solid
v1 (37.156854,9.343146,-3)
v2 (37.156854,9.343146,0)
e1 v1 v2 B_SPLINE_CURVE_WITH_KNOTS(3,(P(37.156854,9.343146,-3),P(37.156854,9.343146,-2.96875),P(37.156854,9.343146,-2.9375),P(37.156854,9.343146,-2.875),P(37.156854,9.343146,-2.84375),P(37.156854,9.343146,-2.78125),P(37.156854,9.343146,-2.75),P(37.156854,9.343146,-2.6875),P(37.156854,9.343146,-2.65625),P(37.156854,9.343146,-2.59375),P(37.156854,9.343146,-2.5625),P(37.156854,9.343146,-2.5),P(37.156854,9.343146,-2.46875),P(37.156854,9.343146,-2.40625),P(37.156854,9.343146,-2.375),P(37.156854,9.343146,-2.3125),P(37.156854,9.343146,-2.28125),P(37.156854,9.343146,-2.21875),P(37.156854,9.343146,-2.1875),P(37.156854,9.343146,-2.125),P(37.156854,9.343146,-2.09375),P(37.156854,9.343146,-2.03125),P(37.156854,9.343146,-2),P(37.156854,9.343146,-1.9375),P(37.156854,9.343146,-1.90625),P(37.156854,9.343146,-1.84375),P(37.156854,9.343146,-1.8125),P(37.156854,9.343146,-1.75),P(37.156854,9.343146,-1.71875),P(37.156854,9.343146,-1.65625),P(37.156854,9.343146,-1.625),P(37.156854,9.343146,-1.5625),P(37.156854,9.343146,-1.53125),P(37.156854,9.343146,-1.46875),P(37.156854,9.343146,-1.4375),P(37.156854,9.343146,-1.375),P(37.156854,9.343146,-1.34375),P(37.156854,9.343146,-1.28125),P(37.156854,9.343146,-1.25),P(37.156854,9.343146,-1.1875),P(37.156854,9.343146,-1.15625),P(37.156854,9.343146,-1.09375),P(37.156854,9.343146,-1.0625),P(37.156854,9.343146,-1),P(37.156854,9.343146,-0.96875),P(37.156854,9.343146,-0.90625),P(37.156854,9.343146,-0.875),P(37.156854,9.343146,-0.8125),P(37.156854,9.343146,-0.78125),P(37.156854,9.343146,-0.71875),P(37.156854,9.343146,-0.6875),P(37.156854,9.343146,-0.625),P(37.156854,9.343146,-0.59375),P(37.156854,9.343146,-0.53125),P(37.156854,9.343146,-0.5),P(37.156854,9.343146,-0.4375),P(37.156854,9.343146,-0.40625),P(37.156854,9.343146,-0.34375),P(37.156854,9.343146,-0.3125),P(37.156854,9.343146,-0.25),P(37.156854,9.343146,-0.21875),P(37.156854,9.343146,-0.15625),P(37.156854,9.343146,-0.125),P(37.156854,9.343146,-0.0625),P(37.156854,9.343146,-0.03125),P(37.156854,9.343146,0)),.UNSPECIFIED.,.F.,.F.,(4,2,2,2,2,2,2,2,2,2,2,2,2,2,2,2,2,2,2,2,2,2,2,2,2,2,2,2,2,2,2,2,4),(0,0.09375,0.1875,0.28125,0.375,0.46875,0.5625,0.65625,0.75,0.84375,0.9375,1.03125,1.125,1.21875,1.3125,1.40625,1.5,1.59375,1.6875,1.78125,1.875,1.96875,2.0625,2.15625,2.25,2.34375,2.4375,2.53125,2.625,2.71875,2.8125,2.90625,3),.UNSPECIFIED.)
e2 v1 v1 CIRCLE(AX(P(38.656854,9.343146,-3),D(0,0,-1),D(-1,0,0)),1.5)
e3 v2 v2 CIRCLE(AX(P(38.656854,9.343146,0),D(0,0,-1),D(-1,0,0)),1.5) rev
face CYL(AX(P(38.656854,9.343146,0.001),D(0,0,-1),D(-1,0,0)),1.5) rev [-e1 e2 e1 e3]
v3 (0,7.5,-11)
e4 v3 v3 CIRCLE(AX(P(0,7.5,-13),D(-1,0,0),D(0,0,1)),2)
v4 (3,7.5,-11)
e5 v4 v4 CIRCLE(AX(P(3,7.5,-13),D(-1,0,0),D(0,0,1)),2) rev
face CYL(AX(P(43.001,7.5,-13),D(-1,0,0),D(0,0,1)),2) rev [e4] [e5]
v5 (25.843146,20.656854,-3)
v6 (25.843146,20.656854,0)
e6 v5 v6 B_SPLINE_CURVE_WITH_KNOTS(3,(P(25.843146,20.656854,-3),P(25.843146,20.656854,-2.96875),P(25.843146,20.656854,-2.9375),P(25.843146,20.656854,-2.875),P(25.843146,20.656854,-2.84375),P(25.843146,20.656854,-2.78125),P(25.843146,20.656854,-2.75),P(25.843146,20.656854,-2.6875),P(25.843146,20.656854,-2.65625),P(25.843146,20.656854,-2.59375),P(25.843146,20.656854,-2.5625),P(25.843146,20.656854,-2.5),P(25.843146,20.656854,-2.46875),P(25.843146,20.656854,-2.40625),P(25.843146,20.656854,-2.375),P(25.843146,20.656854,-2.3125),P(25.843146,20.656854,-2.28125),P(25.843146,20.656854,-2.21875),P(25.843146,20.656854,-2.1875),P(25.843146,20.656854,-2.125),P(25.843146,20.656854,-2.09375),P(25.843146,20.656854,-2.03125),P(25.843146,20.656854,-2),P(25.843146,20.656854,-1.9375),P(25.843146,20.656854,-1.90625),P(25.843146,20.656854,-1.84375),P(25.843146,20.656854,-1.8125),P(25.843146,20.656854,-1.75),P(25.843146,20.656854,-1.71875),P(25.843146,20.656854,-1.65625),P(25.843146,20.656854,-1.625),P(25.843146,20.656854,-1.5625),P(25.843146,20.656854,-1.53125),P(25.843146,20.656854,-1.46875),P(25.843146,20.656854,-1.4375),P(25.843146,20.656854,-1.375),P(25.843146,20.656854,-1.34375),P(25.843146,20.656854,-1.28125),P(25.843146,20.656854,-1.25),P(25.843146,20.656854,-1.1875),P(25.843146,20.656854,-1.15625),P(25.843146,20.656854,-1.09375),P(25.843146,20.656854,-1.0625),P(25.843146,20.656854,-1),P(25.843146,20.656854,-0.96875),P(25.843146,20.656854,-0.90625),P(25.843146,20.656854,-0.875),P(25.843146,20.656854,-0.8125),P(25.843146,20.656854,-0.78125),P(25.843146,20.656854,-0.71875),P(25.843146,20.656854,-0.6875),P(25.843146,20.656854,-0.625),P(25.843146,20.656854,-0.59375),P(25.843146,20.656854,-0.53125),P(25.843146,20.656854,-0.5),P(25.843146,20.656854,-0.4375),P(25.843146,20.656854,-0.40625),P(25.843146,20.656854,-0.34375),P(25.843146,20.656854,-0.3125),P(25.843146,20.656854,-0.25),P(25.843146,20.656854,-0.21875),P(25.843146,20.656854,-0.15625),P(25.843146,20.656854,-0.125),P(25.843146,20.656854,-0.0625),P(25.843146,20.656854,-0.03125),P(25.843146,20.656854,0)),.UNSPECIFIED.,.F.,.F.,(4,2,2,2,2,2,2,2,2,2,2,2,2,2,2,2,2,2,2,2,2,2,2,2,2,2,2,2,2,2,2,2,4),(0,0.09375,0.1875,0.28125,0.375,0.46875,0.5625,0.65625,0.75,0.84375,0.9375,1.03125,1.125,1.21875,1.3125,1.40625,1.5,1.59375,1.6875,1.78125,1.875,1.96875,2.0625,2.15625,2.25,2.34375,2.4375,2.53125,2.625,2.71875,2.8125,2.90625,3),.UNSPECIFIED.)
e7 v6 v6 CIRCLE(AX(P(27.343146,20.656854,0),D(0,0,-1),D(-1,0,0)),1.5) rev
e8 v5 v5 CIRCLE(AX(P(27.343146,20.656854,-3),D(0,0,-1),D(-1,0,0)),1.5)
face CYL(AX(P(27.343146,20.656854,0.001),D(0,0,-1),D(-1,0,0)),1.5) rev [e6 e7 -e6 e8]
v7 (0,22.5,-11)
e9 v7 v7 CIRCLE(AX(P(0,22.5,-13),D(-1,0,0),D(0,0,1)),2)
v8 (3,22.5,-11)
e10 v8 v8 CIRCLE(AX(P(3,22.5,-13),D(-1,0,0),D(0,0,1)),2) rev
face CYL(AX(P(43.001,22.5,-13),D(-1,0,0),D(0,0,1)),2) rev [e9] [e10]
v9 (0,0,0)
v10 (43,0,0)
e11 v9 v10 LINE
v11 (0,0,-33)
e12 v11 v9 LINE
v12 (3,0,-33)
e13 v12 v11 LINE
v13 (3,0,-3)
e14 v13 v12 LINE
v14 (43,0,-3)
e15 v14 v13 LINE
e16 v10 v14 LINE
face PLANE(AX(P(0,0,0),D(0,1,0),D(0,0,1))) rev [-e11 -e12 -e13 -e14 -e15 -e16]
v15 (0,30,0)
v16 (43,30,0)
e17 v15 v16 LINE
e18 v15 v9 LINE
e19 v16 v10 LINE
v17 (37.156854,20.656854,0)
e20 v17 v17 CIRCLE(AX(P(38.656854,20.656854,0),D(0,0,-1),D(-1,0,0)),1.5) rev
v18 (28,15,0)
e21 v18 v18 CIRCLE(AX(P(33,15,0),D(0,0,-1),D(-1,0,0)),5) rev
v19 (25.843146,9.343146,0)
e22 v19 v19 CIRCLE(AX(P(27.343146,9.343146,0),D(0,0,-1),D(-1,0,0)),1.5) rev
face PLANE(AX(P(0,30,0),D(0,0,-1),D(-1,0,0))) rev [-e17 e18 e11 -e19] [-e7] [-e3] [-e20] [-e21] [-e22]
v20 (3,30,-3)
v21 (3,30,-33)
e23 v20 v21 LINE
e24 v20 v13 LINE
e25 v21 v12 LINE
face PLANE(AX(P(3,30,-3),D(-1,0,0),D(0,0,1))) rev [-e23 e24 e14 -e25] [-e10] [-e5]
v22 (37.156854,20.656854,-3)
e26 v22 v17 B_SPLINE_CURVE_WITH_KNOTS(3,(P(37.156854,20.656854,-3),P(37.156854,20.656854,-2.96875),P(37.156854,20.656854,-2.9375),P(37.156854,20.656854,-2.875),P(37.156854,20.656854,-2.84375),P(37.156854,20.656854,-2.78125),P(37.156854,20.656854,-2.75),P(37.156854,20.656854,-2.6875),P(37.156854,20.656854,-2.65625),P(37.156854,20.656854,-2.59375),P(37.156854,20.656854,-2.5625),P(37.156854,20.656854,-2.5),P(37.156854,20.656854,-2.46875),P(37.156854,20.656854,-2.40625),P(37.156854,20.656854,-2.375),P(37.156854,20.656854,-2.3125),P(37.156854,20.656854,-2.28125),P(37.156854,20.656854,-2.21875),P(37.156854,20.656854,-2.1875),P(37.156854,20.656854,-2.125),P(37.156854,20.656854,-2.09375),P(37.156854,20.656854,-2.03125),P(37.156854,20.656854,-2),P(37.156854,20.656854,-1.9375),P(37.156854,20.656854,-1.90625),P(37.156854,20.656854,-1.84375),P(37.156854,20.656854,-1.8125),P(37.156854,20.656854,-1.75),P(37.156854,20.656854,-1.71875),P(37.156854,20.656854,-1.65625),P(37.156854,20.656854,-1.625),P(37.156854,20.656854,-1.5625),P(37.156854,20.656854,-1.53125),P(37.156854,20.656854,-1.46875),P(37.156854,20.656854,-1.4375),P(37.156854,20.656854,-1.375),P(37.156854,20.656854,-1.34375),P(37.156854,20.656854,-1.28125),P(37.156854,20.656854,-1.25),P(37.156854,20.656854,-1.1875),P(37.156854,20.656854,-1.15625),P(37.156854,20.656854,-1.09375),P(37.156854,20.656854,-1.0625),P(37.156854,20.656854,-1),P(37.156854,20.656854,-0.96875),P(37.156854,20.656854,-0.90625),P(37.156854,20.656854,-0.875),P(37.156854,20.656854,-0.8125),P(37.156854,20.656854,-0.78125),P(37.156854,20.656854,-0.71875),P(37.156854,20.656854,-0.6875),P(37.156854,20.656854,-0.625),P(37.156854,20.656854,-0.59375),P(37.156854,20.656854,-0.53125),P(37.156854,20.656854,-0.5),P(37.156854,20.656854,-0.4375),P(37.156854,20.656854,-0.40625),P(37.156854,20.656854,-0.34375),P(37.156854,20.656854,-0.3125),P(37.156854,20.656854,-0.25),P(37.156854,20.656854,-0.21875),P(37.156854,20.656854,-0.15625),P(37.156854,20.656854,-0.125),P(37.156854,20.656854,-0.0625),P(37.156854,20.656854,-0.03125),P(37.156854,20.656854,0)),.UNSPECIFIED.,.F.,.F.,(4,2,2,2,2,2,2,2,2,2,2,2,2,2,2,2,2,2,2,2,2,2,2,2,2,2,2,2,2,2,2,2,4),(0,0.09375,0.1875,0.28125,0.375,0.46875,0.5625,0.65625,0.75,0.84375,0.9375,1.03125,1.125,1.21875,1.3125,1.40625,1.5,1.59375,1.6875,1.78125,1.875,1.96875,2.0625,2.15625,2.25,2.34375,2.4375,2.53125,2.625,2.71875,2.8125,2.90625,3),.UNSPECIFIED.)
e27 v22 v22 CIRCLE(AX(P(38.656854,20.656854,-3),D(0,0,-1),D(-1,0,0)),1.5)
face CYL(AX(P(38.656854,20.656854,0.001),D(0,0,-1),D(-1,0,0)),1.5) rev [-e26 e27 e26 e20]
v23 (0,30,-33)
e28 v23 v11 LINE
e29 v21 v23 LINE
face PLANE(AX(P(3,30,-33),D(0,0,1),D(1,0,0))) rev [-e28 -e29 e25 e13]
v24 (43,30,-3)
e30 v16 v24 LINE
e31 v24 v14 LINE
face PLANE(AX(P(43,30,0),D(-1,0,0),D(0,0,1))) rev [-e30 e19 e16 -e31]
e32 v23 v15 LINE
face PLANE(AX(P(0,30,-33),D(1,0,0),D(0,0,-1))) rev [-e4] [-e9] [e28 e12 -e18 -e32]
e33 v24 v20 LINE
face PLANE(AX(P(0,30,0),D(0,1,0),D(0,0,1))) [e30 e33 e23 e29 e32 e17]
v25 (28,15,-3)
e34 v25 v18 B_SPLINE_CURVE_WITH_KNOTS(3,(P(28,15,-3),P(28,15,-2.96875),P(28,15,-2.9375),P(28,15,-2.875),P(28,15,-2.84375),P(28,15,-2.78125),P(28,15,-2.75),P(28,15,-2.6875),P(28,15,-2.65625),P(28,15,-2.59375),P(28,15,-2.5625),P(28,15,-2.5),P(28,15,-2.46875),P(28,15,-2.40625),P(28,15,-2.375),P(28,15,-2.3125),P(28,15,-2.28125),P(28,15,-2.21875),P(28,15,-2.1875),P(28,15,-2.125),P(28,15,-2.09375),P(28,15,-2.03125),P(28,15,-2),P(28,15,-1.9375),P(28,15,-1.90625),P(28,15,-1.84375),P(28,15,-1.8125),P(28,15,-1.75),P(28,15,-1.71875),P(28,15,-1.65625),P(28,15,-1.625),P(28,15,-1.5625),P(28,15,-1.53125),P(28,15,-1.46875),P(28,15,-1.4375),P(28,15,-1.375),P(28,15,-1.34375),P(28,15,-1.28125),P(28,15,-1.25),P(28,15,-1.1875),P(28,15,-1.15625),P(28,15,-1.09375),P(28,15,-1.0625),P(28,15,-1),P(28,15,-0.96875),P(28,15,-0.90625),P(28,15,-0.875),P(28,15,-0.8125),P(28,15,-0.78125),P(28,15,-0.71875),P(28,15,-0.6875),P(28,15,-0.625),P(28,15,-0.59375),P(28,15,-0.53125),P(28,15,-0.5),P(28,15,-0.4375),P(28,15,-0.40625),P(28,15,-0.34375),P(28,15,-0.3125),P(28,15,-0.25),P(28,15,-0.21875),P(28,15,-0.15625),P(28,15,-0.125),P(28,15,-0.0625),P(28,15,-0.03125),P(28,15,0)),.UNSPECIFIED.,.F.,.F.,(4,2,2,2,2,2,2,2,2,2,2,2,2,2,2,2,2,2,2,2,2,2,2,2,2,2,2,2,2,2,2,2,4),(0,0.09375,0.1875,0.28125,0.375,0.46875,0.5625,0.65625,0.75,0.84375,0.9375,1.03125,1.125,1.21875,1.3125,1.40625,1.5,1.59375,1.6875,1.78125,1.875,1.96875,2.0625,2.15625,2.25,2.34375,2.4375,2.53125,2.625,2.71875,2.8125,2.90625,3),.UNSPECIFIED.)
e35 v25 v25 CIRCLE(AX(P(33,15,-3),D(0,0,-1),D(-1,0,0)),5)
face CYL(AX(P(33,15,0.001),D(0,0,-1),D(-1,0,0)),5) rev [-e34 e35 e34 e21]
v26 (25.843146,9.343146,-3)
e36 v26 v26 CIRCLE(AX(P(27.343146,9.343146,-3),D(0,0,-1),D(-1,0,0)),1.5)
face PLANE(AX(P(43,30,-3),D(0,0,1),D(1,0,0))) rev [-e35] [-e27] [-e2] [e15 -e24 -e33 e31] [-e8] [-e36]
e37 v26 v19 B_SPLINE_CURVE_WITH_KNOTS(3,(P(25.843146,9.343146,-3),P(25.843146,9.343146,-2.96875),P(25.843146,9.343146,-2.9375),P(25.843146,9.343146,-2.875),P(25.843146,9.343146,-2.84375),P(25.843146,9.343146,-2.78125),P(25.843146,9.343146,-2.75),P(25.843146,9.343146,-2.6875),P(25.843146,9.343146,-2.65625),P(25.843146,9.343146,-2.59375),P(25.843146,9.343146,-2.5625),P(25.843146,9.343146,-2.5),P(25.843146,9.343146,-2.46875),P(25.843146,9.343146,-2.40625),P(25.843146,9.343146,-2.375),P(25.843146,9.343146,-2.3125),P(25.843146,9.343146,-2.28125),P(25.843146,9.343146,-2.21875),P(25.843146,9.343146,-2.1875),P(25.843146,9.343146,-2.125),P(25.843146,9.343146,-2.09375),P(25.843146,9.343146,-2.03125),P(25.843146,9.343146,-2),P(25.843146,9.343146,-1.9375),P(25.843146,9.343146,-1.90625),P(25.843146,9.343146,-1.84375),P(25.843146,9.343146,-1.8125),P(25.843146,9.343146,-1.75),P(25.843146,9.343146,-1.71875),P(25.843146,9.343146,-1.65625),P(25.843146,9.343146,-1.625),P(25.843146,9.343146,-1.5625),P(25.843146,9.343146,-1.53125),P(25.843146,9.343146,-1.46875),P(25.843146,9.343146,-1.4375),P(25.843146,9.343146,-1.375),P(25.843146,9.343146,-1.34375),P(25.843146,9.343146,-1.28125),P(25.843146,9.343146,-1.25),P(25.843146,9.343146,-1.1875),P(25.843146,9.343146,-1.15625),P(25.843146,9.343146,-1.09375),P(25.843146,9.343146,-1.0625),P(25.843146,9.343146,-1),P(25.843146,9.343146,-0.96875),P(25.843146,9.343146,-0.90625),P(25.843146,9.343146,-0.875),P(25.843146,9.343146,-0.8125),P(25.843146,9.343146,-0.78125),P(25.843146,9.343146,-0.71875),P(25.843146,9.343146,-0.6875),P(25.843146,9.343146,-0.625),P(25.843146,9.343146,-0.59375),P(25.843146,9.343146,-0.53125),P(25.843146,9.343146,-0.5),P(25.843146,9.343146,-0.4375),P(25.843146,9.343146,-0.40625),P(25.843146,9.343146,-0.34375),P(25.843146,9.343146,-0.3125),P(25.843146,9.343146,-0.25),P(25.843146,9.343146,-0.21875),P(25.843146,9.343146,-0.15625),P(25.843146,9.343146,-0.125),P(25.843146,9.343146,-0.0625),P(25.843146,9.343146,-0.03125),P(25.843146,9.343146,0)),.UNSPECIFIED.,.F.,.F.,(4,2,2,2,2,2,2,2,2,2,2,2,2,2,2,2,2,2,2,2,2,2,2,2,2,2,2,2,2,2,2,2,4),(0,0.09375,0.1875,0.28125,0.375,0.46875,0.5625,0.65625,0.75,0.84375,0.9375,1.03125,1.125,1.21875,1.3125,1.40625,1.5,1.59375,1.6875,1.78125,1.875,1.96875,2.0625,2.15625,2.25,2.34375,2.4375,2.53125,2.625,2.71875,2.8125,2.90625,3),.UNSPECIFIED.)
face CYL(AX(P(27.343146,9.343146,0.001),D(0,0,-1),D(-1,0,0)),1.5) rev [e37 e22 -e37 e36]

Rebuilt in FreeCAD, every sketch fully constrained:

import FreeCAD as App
import Part
import Sketcher

V = App.Vector

doc = App.newDocument("Part")
body = doc.addObject("PartDesign::Body", "Body")

# Sketch on XZ plane
sketch1 = body.newObject("Sketcher::SketchObject", "Sketch")
sketch1.AttachmentSupport = (doc.getObject("XZ_Plane"), [""])
sketch1.MapMode = "FlatFace"
sketch1.addGeometry([
    Part.LineSegment(V(0, 0, 0), V(43, 0, 0)),  # 0
    Part.LineSegment(V(43, 0, 0), V(43, -3, 0)),  # 1
    Part.LineSegment(V(43, -3, 0), V(3, -3, 0)),  # 2
    Part.LineSegment(V(3, -3, 0), V(3, -33, 0)),  # 3
    Part.LineSegment(V(3, -33, 0), V(0, -33, 0)),  # 4
    Part.LineSegment(V(0, -33, 0), V(0, 0, 0)),  # 5
], False)
sketch1.addConstraint([
    Sketcher.Constraint("Coincident", 0, 2, 1, 1),
    Sketcher.Constraint("Coincident", 1, 2, 2, 1),
    Sketcher.Constraint("Coincident", 2, 2, 3, 1),
    Sketcher.Constraint("Coincident", 3, 2, 4, 1),
    Sketcher.Constraint("Coincident", 4, 2, 5, 1),
    Sketcher.Constraint("Coincident", 5, 2, 0, 1),
    Sketcher.Constraint("Horizontal", 0),
    Sketcher.Constraint("Vertical", 1),
    Sketcher.Constraint("Horizontal", 2),
    Sketcher.Constraint("Vertical", 3),
    Sketcher.Constraint("Horizontal", 4),
    Sketcher.Constraint("Vertical", 5),
    Sketcher.Constraint("Coincident", 5, 2, -1, 1),
    Sketcher.Constraint("Equal", 4, 1),
    Sketcher.Constraint("DistanceX", 0, 1, 0, 2, 43.0),
    Sketcher.Constraint("DistanceX", 2, 2, 2, 1, 40.0),
    Sketcher.Constraint("DistanceY", 3, 2, 3, 1, 30.0),
])
pad1 = body.newObject("PartDesign::Pad", "Pad")
pad1.Profile = sketch1
pad1.Length = 30
pad1.Reversed = True

# Sketch on YZ plane
sketch2 = body.newObject("Sketcher::SketchObject", "Sketch001")
sketch2.AttachmentSupport = (doc.getObject("YZ_Plane"), [""])
sketch2.MapMode = "FlatFace"
sketch2.addGeometry(Part.Circle(V(7.5, -13, 0), V(0, 0, 1), 2), False)
sketch2.addConstraint([
    Sketcher.Constraint("Diameter", 0, 4.0),
    Sketcher.Constraint("DistanceY", 0, 3, -1, 1, 13.0),
    Sketcher.Constraint("DistanceX", -1, 1, 0, 3, 7.5),
])
pocket1 = body.newObject("PartDesign::Pocket", "Pocket")
pocket1.Profile = sketch2
pocket1.Type = "UpToFirst"
pocket1.Reversed = True

# Sketch on YZ plane
sketch3 = body.newObject("Sketcher::SketchObject", "Sketch002")
sketch3.AttachmentSupport = (doc.getObject("YZ_Plane"), [""])
sketch3.MapMode = "FlatFace"
sketch3.addGeometry(Part.Circle(V(22.5, -13, 0), V(0, 0, 1), 2), False)
sketch3.addConstraint([
    Sketcher.Constraint("Diameter", 0, 4.0),
    Sketcher.Constraint("DistanceY", 0, 3, -1, 1, 13.0),
    Sketcher.Constraint("DistanceX", -1, 1, 0, 3, 22.5),
])
pocket2 = body.newObject("PartDesign::Pocket", "Pocket001")
pocket2.Profile = sketch3
pocket2.Type = "UpToFirst"
pocket2.Reversed = True

# Sketch on XY plane
sketch4 = body.newObject("Sketcher::SketchObject", "Sketch003")
sketch4.AttachmentSupport = (doc.getObject("XY_Plane"), [""])
sketch4.MapMode = "FlatFace"
sketch4.AttachmentOffset = App.Placement(V(0, 0, -3), App.Rotation())
sketch4.addGeometry(Part.Circle(V(33, 15, 0), V(0, 0, 1), 5), False)
sketch4.addConstraint([
    Sketcher.Constraint("Diameter", 0, 10.0),
    Sketcher.Constraint("DistanceX", -1, 1, 0, 3, 33.0),
    Sketcher.Constraint("DistanceY", -1, 1, 0, 3, 15.0),
])
pocket3 = body.newObject("PartDesign::Pocket", "Pocket002")
pocket3.Profile = sketch4
pocket3.Type = "UpToFirst"
pocket3.Reversed = True

# Sketch on XY plane
sketch5 = body.newObject("Sketcher::SketchObject", "Sketch004")
sketch5.AttachmentSupport = (doc.getObject("XY_Plane"), [""])
sketch5.MapMode = "FlatFace"
sketch5.AttachmentOffset = App.Placement(V(0, 0, -3), App.Rotation())
sketch5.addGeometry(Part.Circle(V(38.7, 9.3, 0), V(0, 0, 1), 1.5), False)
sketch5.addConstraint([
    Sketcher.Constraint("Diameter", 0, 3.0),
    Sketcher.Constraint("DistanceX", -1, 1, 0, 3, 38.656854),
    Sketcher.Constraint("DistanceY", -1, 1, 0, 3, 9.343146),
])
pocket4 = body.newObject("PartDesign::Pocket", "Pocket003")
pocket4.Profile = sketch5
pocket4.Type = "UpToFirst"
pocket4.Reversed = True

# Sketch on XY plane
sketch6 = body.newObject("Sketcher::SketchObject", "Sketch005")
sketch6.AttachmentSupport = (doc.getObject("XY_Plane"), [""])
sketch6.MapMode = "FlatFace"
sketch6.AttachmentOffset = App.Placement(V(0, 0, -3), App.Rotation())
sketch6.addGeometry(Part.Circle(V(27.3, 9.3, 0), V(0, 0, 1), 1.5), False)
sketch6.addConstraint([
    Sketcher.Constraint("Diameter", 0, 3.0),
    Sketcher.Constraint("DistanceX", -1, 1, 0, 3, 27.343146),
    Sketcher.Constraint("DistanceY", -1, 1, 0, 3, 9.343146),
])
pocket5 = body.newObject("PartDesign::Pocket", "Pocket004")
pocket5.Profile = sketch6
pocket5.Type = "UpToFirst"
pocket5.Reversed = True

# Sketch on XY plane
sketch7 = body.newObject("Sketcher::SketchObject", "Sketch006")
sketch7.AttachmentSupport = (doc.getObject("XY_Plane"), [""])
sketch7.MapMode = "FlatFace"
sketch7.AttachmentOffset = App.Placement(V(0, 0, -3), App.Rotation())
sketch7.addGeometry(Part.Circle(V(38.7, 20.7, 0), V(0, 0, 1), 1.5), False)
sketch7.addConstraint([
    Sketcher.Constraint("Diameter", 0, 3.0),
    Sketcher.Constraint("DistanceX", -1, 1, 0, 3, 38.656854),
    Sketcher.Constraint("DistanceY", -1, 1, 0, 3, 20.656854),
])
pocket6 = body.newObject("PartDesign::Pocket", "Pocket005")
pocket6.Profile = sketch7
pocket6.Type = "UpToFirst"
pocket6.Reversed = True

# Sketch on XY plane
sketch8 = body.newObject("Sketcher::SketchObject", "Sketch007")
sketch8.AttachmentSupport = (doc.getObject("XY_Plane"), [""])
sketch8.MapMode = "FlatFace"
sketch8.AttachmentOffset = App.Placement(V(0, 0, -3), App.Rotation())
sketch8.addGeometry(Part.Circle(V(27.3, 20.7, 0), V(0, 0, 1), 1.5), False)
sketch8.addConstraint([
    Sketcher.Constraint("Diameter", 0, 3.0),
    Sketcher.Constraint("DistanceX", -1, 1, 0, 3, 27.343146),
    Sketcher.Constraint("DistanceY", -1, 1, 0, 3, 20.656854),
])
pocket7 = body.newObject("PartDesign::Pocket", "Pocket006")
pocket7.Profile = sketch8
pocket7.Type = "UpToFirst"
pocket7.Reversed = True

doc.recompute()
